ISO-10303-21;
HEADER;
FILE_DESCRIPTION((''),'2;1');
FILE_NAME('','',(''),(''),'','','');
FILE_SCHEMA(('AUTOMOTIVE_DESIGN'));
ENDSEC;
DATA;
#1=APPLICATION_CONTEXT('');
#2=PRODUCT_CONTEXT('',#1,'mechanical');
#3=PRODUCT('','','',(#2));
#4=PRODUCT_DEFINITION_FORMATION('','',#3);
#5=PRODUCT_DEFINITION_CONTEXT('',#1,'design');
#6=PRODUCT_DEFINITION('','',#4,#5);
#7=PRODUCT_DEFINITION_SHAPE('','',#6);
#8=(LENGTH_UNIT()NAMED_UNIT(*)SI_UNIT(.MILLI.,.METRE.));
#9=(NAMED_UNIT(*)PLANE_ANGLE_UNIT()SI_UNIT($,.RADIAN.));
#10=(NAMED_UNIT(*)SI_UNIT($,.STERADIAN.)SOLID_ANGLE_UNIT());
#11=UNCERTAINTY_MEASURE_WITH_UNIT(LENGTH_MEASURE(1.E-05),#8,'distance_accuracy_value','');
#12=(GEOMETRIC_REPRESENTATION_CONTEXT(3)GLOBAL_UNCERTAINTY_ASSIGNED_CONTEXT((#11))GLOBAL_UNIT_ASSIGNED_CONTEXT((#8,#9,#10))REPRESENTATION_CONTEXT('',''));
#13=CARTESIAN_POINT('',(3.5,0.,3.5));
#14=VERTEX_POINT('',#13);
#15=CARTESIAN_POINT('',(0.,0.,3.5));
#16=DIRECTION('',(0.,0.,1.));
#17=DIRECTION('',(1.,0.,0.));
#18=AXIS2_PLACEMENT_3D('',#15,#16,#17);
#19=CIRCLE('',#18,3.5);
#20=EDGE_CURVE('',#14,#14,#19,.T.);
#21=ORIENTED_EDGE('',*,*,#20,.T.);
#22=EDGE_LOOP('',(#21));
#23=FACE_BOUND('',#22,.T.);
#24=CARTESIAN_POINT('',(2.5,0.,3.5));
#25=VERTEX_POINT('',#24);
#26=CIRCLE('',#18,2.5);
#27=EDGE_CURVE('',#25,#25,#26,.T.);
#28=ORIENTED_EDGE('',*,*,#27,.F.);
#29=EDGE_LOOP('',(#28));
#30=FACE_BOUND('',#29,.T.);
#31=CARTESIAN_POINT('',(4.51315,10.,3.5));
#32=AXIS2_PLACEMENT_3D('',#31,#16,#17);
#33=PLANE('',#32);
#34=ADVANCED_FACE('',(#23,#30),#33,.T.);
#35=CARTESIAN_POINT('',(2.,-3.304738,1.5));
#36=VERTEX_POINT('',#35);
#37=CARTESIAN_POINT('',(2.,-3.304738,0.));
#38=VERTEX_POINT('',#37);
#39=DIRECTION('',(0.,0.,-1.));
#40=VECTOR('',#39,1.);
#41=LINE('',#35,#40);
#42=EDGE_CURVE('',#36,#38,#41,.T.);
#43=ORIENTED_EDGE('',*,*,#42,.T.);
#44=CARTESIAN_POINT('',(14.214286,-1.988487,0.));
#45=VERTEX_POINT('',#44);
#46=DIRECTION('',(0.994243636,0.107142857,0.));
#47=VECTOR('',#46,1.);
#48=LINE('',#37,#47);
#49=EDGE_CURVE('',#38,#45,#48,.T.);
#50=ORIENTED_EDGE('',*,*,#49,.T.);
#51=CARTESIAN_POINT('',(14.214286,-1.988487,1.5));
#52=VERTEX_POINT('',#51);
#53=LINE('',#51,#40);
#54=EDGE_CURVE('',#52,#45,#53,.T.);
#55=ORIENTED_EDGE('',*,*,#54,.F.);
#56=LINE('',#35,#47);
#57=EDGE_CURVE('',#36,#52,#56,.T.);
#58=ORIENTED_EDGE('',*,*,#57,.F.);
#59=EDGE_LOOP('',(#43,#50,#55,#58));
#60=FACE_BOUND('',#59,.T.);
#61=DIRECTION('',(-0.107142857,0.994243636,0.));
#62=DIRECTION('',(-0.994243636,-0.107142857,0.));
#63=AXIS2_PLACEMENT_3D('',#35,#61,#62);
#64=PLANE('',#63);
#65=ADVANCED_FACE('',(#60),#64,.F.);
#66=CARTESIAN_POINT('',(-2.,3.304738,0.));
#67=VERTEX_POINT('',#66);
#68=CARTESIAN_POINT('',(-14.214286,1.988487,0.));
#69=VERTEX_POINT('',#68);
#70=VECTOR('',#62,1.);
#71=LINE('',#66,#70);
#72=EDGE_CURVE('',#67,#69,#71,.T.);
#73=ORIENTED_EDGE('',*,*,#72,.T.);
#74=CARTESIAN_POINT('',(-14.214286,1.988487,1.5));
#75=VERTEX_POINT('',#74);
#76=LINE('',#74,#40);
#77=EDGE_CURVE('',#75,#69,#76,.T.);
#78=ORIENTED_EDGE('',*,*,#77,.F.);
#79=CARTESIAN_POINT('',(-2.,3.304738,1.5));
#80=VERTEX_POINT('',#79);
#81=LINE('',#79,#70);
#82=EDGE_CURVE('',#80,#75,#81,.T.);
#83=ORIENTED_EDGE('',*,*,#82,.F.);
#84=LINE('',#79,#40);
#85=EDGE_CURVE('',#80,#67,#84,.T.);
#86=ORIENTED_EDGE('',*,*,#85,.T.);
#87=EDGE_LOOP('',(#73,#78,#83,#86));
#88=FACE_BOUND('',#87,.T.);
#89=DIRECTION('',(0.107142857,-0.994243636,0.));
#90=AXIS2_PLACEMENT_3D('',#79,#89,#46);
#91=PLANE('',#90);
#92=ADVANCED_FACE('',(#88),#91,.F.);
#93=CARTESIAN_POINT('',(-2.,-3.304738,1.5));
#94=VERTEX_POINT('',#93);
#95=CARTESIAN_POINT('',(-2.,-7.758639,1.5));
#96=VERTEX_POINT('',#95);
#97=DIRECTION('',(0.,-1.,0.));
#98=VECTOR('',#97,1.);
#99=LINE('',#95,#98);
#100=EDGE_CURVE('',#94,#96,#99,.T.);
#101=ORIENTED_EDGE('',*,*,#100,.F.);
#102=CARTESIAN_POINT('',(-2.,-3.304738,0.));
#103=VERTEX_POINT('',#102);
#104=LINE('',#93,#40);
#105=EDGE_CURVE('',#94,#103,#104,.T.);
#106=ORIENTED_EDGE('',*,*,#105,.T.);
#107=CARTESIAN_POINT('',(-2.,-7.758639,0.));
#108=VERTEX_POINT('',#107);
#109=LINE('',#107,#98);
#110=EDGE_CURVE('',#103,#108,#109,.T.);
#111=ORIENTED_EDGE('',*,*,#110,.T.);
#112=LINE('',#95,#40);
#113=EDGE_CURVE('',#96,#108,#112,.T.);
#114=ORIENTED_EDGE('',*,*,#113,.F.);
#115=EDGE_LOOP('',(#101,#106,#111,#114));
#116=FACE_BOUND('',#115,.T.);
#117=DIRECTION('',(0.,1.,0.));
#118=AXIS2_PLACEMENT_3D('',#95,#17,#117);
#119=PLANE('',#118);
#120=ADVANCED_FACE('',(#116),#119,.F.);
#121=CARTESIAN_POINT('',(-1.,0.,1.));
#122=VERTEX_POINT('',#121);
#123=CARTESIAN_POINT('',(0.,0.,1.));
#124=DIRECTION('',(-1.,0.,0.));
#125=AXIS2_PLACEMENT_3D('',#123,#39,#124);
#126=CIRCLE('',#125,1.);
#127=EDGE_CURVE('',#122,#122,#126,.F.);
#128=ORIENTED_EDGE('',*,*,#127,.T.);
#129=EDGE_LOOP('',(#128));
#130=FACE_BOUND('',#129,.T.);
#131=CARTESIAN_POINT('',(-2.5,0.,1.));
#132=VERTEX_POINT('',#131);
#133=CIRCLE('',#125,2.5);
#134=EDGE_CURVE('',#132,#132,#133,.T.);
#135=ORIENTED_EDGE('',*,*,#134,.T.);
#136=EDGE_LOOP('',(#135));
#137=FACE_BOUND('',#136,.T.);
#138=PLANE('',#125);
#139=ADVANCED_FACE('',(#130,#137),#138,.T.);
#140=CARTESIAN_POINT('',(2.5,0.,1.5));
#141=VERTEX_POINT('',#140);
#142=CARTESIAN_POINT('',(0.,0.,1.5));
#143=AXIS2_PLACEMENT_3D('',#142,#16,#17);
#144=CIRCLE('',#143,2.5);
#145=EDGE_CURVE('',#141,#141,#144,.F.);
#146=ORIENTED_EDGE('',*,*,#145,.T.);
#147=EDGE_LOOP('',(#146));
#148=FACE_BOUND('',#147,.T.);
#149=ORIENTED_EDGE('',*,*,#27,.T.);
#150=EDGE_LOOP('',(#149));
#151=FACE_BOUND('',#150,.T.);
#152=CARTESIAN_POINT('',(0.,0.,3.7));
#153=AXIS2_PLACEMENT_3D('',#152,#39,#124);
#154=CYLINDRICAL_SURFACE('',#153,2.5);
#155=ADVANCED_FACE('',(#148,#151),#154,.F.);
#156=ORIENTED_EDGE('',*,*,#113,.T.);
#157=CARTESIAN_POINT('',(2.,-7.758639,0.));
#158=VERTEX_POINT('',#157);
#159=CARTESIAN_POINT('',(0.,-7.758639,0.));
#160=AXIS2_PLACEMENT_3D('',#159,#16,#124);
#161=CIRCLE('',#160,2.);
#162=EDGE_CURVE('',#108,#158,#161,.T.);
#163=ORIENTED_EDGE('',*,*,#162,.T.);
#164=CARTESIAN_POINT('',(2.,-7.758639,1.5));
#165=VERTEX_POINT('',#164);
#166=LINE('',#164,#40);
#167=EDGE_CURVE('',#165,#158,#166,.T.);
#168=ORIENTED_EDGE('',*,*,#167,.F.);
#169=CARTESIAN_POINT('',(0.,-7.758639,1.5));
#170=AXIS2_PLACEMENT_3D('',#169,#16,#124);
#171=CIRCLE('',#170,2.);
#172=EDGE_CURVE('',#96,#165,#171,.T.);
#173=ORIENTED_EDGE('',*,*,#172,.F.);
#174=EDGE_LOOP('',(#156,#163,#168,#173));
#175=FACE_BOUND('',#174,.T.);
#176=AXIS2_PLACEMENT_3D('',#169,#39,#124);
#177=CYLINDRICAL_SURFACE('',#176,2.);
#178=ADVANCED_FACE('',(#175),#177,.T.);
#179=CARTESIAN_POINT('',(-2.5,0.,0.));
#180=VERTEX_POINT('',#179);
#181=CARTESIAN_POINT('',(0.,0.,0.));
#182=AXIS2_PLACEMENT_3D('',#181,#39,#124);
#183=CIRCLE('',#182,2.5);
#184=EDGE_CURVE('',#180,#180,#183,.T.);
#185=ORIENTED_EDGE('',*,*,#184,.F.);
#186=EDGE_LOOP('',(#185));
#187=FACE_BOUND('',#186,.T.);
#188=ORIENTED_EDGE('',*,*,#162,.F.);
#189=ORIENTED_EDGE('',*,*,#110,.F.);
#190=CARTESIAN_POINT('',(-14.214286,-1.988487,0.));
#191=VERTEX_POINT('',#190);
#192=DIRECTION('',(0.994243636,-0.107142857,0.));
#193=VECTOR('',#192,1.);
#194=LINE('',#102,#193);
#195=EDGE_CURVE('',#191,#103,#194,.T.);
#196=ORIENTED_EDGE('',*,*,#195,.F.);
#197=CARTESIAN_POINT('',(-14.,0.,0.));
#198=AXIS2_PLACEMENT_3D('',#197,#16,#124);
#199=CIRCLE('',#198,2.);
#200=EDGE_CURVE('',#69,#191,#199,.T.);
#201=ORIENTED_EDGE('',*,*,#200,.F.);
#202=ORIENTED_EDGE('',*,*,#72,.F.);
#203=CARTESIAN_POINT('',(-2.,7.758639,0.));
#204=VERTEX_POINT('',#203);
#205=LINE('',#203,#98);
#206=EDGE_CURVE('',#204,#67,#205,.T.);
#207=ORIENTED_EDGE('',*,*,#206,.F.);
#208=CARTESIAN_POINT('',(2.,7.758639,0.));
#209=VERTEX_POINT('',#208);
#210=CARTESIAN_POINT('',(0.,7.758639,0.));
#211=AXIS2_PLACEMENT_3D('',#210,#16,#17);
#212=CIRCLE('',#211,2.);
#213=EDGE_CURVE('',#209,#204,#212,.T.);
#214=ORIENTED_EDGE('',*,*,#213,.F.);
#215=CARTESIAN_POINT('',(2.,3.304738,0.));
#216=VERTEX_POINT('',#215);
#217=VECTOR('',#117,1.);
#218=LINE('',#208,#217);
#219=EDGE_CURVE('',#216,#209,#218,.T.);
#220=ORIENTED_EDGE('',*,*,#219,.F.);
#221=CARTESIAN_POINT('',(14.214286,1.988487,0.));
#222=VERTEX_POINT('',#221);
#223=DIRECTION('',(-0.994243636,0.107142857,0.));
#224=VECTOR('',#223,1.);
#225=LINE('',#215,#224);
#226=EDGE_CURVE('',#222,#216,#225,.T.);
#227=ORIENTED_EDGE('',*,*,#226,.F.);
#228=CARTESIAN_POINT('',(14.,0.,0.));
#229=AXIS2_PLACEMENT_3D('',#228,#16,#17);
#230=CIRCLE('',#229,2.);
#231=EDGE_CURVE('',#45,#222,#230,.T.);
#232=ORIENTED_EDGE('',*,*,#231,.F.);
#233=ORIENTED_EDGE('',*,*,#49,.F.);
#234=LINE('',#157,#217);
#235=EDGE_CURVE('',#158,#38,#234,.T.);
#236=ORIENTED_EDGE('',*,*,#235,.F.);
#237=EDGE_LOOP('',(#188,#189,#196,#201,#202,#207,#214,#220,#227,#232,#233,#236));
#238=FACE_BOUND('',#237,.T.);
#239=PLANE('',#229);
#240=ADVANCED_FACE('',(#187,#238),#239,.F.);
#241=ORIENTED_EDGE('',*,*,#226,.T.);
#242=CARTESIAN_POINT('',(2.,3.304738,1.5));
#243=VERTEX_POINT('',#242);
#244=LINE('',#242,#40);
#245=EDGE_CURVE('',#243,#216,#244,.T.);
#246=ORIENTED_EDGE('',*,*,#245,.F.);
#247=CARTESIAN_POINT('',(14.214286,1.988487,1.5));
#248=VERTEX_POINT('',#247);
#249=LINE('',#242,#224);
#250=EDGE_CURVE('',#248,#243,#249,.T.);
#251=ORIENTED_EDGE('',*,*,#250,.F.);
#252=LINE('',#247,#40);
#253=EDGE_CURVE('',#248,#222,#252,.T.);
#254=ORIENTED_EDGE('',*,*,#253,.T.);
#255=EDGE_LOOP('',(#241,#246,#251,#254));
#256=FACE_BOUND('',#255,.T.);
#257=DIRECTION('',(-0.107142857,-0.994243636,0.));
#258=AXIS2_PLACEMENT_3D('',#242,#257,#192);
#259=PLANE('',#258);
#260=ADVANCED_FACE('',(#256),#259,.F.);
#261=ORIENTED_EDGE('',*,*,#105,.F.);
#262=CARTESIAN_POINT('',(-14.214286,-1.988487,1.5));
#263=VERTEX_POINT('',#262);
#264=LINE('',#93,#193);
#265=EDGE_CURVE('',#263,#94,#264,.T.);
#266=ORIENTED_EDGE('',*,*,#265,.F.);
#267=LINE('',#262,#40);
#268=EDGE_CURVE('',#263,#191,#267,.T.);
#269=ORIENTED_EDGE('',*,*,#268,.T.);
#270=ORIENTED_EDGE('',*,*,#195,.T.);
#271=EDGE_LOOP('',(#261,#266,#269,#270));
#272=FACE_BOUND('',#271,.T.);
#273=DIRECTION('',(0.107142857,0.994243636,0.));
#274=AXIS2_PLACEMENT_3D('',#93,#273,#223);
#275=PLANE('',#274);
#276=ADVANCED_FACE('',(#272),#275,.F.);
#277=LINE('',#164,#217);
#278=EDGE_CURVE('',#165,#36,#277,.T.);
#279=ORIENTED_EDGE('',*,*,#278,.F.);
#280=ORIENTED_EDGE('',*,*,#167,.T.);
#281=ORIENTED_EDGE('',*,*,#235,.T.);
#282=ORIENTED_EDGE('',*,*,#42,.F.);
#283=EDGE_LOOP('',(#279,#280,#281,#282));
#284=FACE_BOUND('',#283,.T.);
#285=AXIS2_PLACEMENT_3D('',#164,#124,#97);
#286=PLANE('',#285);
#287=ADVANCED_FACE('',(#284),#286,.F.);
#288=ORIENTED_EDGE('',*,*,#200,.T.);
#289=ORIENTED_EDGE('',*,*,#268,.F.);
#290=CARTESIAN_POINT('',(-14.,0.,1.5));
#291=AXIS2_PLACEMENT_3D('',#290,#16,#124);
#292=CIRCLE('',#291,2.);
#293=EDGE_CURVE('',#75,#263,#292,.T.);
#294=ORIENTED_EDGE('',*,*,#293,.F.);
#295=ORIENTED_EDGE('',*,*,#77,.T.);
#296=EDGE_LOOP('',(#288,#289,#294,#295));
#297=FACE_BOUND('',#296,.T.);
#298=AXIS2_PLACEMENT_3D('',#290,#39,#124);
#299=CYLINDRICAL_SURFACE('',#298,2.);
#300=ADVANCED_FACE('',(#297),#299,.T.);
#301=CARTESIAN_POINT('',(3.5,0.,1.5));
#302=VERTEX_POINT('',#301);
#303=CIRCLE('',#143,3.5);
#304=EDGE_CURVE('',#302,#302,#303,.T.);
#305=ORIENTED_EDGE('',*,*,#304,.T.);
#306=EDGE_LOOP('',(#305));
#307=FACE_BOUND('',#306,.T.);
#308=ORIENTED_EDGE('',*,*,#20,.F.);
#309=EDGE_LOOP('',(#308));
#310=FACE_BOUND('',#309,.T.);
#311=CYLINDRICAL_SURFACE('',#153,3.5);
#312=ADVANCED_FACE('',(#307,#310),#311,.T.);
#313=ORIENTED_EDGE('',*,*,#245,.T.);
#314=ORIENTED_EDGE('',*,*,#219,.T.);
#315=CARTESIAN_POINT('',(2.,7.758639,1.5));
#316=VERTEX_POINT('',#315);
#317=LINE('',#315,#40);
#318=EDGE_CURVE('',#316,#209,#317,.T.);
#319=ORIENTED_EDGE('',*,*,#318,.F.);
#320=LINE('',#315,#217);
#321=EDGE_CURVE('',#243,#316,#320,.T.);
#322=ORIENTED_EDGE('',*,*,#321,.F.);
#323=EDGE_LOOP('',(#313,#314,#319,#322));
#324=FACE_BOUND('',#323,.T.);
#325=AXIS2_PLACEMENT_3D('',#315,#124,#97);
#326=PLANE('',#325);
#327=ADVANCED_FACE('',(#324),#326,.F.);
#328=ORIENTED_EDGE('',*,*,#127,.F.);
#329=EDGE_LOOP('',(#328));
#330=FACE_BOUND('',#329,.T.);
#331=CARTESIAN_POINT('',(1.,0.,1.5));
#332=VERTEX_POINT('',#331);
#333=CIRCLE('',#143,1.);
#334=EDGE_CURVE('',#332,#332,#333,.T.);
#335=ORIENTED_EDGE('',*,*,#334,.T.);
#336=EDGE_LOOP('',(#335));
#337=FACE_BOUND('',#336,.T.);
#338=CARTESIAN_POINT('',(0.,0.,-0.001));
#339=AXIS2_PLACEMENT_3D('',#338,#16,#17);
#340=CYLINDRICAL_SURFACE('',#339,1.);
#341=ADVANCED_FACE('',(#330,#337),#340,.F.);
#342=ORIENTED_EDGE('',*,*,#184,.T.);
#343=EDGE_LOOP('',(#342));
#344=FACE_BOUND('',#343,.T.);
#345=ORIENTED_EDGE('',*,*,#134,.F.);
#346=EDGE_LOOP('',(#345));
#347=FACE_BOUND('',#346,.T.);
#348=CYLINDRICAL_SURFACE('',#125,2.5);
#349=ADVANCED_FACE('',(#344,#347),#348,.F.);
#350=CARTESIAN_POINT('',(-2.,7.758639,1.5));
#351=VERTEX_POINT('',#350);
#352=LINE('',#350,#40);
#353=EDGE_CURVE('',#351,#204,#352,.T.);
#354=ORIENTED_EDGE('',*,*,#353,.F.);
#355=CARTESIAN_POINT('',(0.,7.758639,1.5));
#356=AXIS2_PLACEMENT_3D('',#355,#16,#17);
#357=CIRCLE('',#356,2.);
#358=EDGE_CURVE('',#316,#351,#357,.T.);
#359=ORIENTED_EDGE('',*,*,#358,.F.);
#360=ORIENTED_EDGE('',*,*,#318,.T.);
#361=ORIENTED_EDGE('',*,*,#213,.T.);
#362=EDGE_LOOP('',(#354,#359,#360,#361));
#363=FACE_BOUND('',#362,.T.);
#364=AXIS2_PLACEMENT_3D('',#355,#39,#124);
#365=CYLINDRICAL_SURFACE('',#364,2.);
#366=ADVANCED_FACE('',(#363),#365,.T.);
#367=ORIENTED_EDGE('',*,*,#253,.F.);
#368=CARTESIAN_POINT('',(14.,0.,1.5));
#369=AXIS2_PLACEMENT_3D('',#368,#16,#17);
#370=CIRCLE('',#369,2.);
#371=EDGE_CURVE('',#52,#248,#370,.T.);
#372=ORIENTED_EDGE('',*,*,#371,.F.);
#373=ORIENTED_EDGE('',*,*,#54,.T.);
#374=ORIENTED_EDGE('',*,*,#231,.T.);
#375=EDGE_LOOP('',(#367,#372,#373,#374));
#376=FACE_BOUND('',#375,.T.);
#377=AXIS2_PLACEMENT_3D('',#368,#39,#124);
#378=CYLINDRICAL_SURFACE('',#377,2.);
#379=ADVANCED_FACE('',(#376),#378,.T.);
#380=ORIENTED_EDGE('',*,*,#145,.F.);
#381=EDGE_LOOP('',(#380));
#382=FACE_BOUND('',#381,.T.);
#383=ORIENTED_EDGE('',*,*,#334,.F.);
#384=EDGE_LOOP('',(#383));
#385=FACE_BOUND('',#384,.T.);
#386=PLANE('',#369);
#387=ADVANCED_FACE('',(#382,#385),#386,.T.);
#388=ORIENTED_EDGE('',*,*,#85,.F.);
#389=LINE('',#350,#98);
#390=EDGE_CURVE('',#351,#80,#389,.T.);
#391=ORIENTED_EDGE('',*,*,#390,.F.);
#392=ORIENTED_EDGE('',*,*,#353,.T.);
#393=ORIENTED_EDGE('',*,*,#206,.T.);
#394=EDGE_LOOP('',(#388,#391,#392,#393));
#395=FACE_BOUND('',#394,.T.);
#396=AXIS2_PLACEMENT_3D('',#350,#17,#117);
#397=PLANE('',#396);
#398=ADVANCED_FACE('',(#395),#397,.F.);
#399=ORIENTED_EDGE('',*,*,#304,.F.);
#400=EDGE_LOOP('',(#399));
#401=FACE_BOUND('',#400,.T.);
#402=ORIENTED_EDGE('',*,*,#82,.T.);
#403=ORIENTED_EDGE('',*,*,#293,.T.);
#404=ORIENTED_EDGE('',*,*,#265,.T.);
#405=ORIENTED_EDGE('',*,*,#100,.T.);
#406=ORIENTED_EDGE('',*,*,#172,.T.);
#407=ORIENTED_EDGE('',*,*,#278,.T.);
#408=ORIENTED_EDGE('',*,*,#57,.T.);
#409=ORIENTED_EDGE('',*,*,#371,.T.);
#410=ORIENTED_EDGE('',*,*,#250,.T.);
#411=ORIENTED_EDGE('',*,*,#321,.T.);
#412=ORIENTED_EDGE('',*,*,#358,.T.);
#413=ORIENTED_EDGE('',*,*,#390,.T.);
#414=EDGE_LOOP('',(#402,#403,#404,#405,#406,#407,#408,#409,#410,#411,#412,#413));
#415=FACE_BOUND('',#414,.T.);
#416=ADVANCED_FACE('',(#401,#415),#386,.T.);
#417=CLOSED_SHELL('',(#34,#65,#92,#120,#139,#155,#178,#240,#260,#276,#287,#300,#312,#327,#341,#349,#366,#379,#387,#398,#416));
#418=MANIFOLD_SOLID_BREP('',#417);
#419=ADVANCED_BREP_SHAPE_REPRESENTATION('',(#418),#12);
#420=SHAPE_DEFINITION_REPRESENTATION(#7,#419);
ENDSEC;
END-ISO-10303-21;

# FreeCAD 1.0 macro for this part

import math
import FreeCAD as App
import Part
import Sketcher
Q = App.Units.Quantity

doc = App.newDocument("Part")
body = doc.addObject("PartDesign::Body", "Body")

sketch1 = doc.addObject("Sketcher::SketchObject", "Sketch")
body.addObject(sketch1)
sketch1.AttachmentSupport = (doc.XY_Plane, [""])
sketch1.MapMode = "FlatFace"
sketch1.addGeometry(Part.LineSegment(App.Vector(2, 3.3, 0), App.Vector(2, 7.8, 0)), False)
sketch1.addGeometry(Part.ArcOfCircle(Part.Circle(App.Vector(0, 7.8, 0), App.Vector(0, 0, 1), 2), math.radians(0), math.radians(180)), False)
sketch1.addGeometry(Part.LineSegment(App.Vector(-2, 7.8, 0), App.Vector(-2, 3.3, 0)), False)
sketch1.addGeometry(Part.LineSegment(App.Vector(-2, 3.3, 0), App.Vector(-14.2, 2, 0)), False)
sketch1.addGeometry(Part.ArcOfCircle(Part.Circle(App.Vector(-14, 0, 0), App.Vector(0, 0, 1), 2), math.radians(96), math.radians(264)), False)
sketch1.addGeometry(Part.LineSegment(App.Vector(-14.2, -2, 0), App.Vector(-2, -3.3, 0)), False)
sketch1.addGeometry(Part.LineSegment(App.Vector(-2, -3.3, 0), App.Vector(-2, -7.8, 0)), False)
sketch1.addGeometry(Part.ArcOfCircle(Part.Circle(App.Vector(0, -7.8, 0), App.Vector(0, 0, 1), 2), math.radians(180), math.radians(360)), False)
sketch1.addGeometry(Part.LineSegment(App.Vector(2, -7.8, 0), App.Vector(2, -3.3, 0)), False)
sketch1.addGeometry(Part.LineSegment(App.Vector(2, -3.3, 0), App.Vector(14.2, -2, 0)), False)
sketch1.addGeometry(Part.ArcOfCircle(Part.Circle(App.Vector(14, 0, 0), App.Vector(0, 0, 1), 2), math.radians(-84), math.radians(84)), False)
sketch1.addGeometry(Part.LineSegment(App.Vector(14.2, 2, 0), App.Vector(2, 3.3, 0)), False)
sketch1.addConstraint(Sketcher.Constraint("Tangent", 0, 2, 1, 1))
sketch1.addConstraint(Sketcher.Constraint("Tangent", 1, 2, 2, 1))
sketch1.addConstraint(Sketcher.Constraint("Coincident", 2, 2, 3, 1))
sketch1.addConstraint(Sketcher.Constraint("Tangent", 3, 2, 4, 1))
sketch1.addConstraint(Sketcher.Constraint("Tangent", 4, 2, 5, 1))
sketch1.addConstraint(Sketcher.Constraint("Coincident", 5, 2, 6, 1))
sketch1.addConstraint(Sketcher.Constraint("Tangent", 6, 2, 7, 1))
sketch1.addConstraint(Sketcher.Constraint("Tangent", 7, 2, 8, 1))
sketch1.addConstraint(Sketcher.Constraint("Coincident", 8, 2, 9, 1))
sketch1.addConstraint(Sketcher.Constraint("Tangent", 9, 2, 10, 1))
sketch1.addConstraint(Sketcher.Constraint("Tangent", 10, 2, 11, 1))
sketch1.addConstraint(Sketcher.Constraint("Coincident", 11, 2, 0, 1))
sketch1.addConstraint(Sketcher.Constraint("Vertical", 0))
sketch1.addConstraint(Sketcher.Constraint("Vertical", 2))
sketch1.addConstraint(Sketcher.Constraint("Vertical", 6))
sketch1.addConstraint(Sketcher.Constraint("Vertical", 8))
sketch1.addConstraint(Sketcher.Constraint("Equal", 1, 4))
sketch1.addConstraint(Sketcher.Constraint("Equal", 4, 7))
sketch1.addConstraint(Sketcher.Constraint("Equal", 7, 10))
sketch1.addConstraint(Sketcher.Constraint("Symmetric", 1, 3, 7, 3, -1, 1))
sketch1.addConstraint(Sketcher.Constraint("Symmetric", 4, 3, 10, 3, -1, 1))
sketch1.addConstraint(Sketcher.Constraint("Symmetric", 5, 2, 8, 2, -2))
sketch1.addConstraint(Sketcher.Constraint("Symmetric", 3, 2, 10, 2, -2))
sketch1.addConstraint(Sketcher.Constraint("Parallel", 3, 9))
sketch1.addConstraint(Sketcher.Constraint("Radius", 1, Q("2 mm")))
sketch1.addConstraint(Sketcher.Constraint("DistanceX", 4, 3, -1, 1, Q("14 mm")))
sketch1.addConstraint(Sketcher.Constraint("DistanceY", 0, 1, 0, 2, Q("4.453901 mm")))
sketch1.addConstraint(Sketcher.Constraint("DistanceY", -1, 1, 1, 3, Q("7.758639 mm")))
pad1 = doc.addObject("PartDesign::Pad", "Pad")
body.addObject(pad1)
pad1.Profile = sketch1
pad1.Length = 1.5

sketch2 = doc.addObject("Sketcher::SketchObject", "Sketch001")
body.addObject(sketch2)
sketch2.AttachmentSupport = (doc.XY_Plane, [""])
sketch2.MapMode = "FlatFace"
sketch2.AttachmentOffset = App.Placement(App.Vector(0, 0, 1.5), App.Rotation())
sketch2.addGeometry(Part.Circle(App.Vector(0, 0, 0), App.Vector(0, 0, 1), 3.5), False)
sketch2.addGeometry(Part.Circle(App.Vector(0, 0, 0), App.Vector(0, 0, 1), 2.5), False)
sketch2.addConstraint(Sketcher.Constraint("Coincident", 0, 3, -1, 1))
sketch2.addConstraint(Sketcher.Constraint("Coincident", 1, 3, -1, 1))
sketch2.addConstraint(Sketcher.Constraint("Diameter", 0, Q("7 mm")))
sketch2.addConstraint(Sketcher.Constraint("Diameter", 1, Q("5 mm")))
pad2 = doc.addObject("PartDesign::Pad", "Pad001")
body.addObject(pad2)
pad2.Profile = sketch2
pad2.Length = 2.2

sketch3 = doc.addObject("Sketcher::SketchObject", "Sketch002")
body.addObject(sketch3)
sketch3.AttachmentSupport = (doc.XY_Plane, [""])
sketch3.MapMode = "FlatFace"
sketch3.AttachmentOffset = App.Placement(App.Vector(0, 0, 1.5), App.Rotation())
sketch3.addGeometry(Part.Circle(App.Vector(0, 0, 0), App.Vector(0, 0, 1), 1), False)
sketch3.addConstraint(Sketcher.Constraint("Coincident", 0, 3, -1, 1))
sketch3.addConstraint(Sketcher.Constraint("Diameter", 0, Q("2 mm")))
pocket1 = doc.addObject("PartDesign::Pocket", "Pocket")
body.addObject(pocket1)
pocket1.Profile = sketch3
pocket1.Type = "UpToFirst"

sketch4 = doc.addObject("Sketcher::SketchObject", "Sketch003")
body.addObject(sketch4)
sketch4.AttachmentSupport = (doc.XY_Plane, [""])
sketch4.MapMode = "FlatFace"
sketch4.addGeometry(Part.Circle(App.Vector(0, 0, 0), App.Vector(0, 0, 1), 2.5), False)
sketch4.addConstraint(Sketcher.Constraint("Coincident", 0, 3, -1, 1))
sketch4.addConstraint(Sketcher.Constraint("Diameter", 0, Q("5 mm")))
pocket2 = doc.addObject("PartDesign::Pocket", "Pocket001")
body.addObject(pocket2)
pocket2.Profile = sketch4
pocket2.Length = 1
pocket2.Reversed = True

sketch5 = doc.addObject("Sketcher::SketchObject", "Sketch004")
body.addObject(sketch5)
sketch5.AttachmentSupport = (doc.XZ_Plane, [""])
sketch5.MapMode = "FlatFace"
sketch5.addGeometry(Part.LineSegment(App.Vector(-4.8, 3.5, 0), App.Vector(-4.8, 5.6, 0)), False)
sketch5.addGeometry(Part.LineSegment(App.Vector(-4.8, 5.6, 0), App.Vector(4.5, 5.6, 0)), False)
sketch5.addGeometry(Part.LineSegment(App.Vector(4.5, 5.6, 0), App.Vector(4.5, 3.5, 0)), False)
sketch5.addGeometry(Part.LineSegment(App.Vector(4.5, 3.5, 0), App.Vector(-4.8, 3.5, 0)), False)
sketch5.addConstraint(Sketcher.Constraint("Coincident", 0, 2, 1, 1))
sketch5.addConstraint(Sketcher.Constraint("Coincident", 1, 2, 2, 1))
sketch5.addConstraint(Sketcher.Constraint("Coincident", 2, 2, 3, 1))
sketch5.addConstraint(Sketcher.Constraint("Coincident", 3, 2, 0, 1))
sketch5.addConstraint(Sketcher.Constraint("Vertical", 0))
sketch5.addConstraint(Sketcher.Constraint("Horizontal", 1))
sketch5.addConstraint(Sketcher.Constraint("Vertical", 2))
sketch5.addConstraint(Sketcher.Constraint("Horizontal", 3))
sketch5.addConstraint(Sketcher.Constraint("DistanceY", -1, 1, 2, 2, Q("3.5 mm")))
sketch5.addConstraint(Sketcher.Constraint("DistanceX", 1, 1, 1, 2, Q("9.28471 mm")))
sketch5.addConstraint(Sketcher.Constraint("DistanceY", 0, 1, 0, 2, Q("2.096548 mm")))
sketch5.addConstraint(Sketcher.Constraint("DistanceX", 0, 2, -1, 1, Q("4.77156 mm")))
pocket3 = doc.addObject("PartDesign::Pocket", "Pocket002")
body.addObject(pocket3)
pocket3.Profile = sketch5
pocket3.Type = "ThroughAll"
pocket3.Midplane = True

doc.recompute()
